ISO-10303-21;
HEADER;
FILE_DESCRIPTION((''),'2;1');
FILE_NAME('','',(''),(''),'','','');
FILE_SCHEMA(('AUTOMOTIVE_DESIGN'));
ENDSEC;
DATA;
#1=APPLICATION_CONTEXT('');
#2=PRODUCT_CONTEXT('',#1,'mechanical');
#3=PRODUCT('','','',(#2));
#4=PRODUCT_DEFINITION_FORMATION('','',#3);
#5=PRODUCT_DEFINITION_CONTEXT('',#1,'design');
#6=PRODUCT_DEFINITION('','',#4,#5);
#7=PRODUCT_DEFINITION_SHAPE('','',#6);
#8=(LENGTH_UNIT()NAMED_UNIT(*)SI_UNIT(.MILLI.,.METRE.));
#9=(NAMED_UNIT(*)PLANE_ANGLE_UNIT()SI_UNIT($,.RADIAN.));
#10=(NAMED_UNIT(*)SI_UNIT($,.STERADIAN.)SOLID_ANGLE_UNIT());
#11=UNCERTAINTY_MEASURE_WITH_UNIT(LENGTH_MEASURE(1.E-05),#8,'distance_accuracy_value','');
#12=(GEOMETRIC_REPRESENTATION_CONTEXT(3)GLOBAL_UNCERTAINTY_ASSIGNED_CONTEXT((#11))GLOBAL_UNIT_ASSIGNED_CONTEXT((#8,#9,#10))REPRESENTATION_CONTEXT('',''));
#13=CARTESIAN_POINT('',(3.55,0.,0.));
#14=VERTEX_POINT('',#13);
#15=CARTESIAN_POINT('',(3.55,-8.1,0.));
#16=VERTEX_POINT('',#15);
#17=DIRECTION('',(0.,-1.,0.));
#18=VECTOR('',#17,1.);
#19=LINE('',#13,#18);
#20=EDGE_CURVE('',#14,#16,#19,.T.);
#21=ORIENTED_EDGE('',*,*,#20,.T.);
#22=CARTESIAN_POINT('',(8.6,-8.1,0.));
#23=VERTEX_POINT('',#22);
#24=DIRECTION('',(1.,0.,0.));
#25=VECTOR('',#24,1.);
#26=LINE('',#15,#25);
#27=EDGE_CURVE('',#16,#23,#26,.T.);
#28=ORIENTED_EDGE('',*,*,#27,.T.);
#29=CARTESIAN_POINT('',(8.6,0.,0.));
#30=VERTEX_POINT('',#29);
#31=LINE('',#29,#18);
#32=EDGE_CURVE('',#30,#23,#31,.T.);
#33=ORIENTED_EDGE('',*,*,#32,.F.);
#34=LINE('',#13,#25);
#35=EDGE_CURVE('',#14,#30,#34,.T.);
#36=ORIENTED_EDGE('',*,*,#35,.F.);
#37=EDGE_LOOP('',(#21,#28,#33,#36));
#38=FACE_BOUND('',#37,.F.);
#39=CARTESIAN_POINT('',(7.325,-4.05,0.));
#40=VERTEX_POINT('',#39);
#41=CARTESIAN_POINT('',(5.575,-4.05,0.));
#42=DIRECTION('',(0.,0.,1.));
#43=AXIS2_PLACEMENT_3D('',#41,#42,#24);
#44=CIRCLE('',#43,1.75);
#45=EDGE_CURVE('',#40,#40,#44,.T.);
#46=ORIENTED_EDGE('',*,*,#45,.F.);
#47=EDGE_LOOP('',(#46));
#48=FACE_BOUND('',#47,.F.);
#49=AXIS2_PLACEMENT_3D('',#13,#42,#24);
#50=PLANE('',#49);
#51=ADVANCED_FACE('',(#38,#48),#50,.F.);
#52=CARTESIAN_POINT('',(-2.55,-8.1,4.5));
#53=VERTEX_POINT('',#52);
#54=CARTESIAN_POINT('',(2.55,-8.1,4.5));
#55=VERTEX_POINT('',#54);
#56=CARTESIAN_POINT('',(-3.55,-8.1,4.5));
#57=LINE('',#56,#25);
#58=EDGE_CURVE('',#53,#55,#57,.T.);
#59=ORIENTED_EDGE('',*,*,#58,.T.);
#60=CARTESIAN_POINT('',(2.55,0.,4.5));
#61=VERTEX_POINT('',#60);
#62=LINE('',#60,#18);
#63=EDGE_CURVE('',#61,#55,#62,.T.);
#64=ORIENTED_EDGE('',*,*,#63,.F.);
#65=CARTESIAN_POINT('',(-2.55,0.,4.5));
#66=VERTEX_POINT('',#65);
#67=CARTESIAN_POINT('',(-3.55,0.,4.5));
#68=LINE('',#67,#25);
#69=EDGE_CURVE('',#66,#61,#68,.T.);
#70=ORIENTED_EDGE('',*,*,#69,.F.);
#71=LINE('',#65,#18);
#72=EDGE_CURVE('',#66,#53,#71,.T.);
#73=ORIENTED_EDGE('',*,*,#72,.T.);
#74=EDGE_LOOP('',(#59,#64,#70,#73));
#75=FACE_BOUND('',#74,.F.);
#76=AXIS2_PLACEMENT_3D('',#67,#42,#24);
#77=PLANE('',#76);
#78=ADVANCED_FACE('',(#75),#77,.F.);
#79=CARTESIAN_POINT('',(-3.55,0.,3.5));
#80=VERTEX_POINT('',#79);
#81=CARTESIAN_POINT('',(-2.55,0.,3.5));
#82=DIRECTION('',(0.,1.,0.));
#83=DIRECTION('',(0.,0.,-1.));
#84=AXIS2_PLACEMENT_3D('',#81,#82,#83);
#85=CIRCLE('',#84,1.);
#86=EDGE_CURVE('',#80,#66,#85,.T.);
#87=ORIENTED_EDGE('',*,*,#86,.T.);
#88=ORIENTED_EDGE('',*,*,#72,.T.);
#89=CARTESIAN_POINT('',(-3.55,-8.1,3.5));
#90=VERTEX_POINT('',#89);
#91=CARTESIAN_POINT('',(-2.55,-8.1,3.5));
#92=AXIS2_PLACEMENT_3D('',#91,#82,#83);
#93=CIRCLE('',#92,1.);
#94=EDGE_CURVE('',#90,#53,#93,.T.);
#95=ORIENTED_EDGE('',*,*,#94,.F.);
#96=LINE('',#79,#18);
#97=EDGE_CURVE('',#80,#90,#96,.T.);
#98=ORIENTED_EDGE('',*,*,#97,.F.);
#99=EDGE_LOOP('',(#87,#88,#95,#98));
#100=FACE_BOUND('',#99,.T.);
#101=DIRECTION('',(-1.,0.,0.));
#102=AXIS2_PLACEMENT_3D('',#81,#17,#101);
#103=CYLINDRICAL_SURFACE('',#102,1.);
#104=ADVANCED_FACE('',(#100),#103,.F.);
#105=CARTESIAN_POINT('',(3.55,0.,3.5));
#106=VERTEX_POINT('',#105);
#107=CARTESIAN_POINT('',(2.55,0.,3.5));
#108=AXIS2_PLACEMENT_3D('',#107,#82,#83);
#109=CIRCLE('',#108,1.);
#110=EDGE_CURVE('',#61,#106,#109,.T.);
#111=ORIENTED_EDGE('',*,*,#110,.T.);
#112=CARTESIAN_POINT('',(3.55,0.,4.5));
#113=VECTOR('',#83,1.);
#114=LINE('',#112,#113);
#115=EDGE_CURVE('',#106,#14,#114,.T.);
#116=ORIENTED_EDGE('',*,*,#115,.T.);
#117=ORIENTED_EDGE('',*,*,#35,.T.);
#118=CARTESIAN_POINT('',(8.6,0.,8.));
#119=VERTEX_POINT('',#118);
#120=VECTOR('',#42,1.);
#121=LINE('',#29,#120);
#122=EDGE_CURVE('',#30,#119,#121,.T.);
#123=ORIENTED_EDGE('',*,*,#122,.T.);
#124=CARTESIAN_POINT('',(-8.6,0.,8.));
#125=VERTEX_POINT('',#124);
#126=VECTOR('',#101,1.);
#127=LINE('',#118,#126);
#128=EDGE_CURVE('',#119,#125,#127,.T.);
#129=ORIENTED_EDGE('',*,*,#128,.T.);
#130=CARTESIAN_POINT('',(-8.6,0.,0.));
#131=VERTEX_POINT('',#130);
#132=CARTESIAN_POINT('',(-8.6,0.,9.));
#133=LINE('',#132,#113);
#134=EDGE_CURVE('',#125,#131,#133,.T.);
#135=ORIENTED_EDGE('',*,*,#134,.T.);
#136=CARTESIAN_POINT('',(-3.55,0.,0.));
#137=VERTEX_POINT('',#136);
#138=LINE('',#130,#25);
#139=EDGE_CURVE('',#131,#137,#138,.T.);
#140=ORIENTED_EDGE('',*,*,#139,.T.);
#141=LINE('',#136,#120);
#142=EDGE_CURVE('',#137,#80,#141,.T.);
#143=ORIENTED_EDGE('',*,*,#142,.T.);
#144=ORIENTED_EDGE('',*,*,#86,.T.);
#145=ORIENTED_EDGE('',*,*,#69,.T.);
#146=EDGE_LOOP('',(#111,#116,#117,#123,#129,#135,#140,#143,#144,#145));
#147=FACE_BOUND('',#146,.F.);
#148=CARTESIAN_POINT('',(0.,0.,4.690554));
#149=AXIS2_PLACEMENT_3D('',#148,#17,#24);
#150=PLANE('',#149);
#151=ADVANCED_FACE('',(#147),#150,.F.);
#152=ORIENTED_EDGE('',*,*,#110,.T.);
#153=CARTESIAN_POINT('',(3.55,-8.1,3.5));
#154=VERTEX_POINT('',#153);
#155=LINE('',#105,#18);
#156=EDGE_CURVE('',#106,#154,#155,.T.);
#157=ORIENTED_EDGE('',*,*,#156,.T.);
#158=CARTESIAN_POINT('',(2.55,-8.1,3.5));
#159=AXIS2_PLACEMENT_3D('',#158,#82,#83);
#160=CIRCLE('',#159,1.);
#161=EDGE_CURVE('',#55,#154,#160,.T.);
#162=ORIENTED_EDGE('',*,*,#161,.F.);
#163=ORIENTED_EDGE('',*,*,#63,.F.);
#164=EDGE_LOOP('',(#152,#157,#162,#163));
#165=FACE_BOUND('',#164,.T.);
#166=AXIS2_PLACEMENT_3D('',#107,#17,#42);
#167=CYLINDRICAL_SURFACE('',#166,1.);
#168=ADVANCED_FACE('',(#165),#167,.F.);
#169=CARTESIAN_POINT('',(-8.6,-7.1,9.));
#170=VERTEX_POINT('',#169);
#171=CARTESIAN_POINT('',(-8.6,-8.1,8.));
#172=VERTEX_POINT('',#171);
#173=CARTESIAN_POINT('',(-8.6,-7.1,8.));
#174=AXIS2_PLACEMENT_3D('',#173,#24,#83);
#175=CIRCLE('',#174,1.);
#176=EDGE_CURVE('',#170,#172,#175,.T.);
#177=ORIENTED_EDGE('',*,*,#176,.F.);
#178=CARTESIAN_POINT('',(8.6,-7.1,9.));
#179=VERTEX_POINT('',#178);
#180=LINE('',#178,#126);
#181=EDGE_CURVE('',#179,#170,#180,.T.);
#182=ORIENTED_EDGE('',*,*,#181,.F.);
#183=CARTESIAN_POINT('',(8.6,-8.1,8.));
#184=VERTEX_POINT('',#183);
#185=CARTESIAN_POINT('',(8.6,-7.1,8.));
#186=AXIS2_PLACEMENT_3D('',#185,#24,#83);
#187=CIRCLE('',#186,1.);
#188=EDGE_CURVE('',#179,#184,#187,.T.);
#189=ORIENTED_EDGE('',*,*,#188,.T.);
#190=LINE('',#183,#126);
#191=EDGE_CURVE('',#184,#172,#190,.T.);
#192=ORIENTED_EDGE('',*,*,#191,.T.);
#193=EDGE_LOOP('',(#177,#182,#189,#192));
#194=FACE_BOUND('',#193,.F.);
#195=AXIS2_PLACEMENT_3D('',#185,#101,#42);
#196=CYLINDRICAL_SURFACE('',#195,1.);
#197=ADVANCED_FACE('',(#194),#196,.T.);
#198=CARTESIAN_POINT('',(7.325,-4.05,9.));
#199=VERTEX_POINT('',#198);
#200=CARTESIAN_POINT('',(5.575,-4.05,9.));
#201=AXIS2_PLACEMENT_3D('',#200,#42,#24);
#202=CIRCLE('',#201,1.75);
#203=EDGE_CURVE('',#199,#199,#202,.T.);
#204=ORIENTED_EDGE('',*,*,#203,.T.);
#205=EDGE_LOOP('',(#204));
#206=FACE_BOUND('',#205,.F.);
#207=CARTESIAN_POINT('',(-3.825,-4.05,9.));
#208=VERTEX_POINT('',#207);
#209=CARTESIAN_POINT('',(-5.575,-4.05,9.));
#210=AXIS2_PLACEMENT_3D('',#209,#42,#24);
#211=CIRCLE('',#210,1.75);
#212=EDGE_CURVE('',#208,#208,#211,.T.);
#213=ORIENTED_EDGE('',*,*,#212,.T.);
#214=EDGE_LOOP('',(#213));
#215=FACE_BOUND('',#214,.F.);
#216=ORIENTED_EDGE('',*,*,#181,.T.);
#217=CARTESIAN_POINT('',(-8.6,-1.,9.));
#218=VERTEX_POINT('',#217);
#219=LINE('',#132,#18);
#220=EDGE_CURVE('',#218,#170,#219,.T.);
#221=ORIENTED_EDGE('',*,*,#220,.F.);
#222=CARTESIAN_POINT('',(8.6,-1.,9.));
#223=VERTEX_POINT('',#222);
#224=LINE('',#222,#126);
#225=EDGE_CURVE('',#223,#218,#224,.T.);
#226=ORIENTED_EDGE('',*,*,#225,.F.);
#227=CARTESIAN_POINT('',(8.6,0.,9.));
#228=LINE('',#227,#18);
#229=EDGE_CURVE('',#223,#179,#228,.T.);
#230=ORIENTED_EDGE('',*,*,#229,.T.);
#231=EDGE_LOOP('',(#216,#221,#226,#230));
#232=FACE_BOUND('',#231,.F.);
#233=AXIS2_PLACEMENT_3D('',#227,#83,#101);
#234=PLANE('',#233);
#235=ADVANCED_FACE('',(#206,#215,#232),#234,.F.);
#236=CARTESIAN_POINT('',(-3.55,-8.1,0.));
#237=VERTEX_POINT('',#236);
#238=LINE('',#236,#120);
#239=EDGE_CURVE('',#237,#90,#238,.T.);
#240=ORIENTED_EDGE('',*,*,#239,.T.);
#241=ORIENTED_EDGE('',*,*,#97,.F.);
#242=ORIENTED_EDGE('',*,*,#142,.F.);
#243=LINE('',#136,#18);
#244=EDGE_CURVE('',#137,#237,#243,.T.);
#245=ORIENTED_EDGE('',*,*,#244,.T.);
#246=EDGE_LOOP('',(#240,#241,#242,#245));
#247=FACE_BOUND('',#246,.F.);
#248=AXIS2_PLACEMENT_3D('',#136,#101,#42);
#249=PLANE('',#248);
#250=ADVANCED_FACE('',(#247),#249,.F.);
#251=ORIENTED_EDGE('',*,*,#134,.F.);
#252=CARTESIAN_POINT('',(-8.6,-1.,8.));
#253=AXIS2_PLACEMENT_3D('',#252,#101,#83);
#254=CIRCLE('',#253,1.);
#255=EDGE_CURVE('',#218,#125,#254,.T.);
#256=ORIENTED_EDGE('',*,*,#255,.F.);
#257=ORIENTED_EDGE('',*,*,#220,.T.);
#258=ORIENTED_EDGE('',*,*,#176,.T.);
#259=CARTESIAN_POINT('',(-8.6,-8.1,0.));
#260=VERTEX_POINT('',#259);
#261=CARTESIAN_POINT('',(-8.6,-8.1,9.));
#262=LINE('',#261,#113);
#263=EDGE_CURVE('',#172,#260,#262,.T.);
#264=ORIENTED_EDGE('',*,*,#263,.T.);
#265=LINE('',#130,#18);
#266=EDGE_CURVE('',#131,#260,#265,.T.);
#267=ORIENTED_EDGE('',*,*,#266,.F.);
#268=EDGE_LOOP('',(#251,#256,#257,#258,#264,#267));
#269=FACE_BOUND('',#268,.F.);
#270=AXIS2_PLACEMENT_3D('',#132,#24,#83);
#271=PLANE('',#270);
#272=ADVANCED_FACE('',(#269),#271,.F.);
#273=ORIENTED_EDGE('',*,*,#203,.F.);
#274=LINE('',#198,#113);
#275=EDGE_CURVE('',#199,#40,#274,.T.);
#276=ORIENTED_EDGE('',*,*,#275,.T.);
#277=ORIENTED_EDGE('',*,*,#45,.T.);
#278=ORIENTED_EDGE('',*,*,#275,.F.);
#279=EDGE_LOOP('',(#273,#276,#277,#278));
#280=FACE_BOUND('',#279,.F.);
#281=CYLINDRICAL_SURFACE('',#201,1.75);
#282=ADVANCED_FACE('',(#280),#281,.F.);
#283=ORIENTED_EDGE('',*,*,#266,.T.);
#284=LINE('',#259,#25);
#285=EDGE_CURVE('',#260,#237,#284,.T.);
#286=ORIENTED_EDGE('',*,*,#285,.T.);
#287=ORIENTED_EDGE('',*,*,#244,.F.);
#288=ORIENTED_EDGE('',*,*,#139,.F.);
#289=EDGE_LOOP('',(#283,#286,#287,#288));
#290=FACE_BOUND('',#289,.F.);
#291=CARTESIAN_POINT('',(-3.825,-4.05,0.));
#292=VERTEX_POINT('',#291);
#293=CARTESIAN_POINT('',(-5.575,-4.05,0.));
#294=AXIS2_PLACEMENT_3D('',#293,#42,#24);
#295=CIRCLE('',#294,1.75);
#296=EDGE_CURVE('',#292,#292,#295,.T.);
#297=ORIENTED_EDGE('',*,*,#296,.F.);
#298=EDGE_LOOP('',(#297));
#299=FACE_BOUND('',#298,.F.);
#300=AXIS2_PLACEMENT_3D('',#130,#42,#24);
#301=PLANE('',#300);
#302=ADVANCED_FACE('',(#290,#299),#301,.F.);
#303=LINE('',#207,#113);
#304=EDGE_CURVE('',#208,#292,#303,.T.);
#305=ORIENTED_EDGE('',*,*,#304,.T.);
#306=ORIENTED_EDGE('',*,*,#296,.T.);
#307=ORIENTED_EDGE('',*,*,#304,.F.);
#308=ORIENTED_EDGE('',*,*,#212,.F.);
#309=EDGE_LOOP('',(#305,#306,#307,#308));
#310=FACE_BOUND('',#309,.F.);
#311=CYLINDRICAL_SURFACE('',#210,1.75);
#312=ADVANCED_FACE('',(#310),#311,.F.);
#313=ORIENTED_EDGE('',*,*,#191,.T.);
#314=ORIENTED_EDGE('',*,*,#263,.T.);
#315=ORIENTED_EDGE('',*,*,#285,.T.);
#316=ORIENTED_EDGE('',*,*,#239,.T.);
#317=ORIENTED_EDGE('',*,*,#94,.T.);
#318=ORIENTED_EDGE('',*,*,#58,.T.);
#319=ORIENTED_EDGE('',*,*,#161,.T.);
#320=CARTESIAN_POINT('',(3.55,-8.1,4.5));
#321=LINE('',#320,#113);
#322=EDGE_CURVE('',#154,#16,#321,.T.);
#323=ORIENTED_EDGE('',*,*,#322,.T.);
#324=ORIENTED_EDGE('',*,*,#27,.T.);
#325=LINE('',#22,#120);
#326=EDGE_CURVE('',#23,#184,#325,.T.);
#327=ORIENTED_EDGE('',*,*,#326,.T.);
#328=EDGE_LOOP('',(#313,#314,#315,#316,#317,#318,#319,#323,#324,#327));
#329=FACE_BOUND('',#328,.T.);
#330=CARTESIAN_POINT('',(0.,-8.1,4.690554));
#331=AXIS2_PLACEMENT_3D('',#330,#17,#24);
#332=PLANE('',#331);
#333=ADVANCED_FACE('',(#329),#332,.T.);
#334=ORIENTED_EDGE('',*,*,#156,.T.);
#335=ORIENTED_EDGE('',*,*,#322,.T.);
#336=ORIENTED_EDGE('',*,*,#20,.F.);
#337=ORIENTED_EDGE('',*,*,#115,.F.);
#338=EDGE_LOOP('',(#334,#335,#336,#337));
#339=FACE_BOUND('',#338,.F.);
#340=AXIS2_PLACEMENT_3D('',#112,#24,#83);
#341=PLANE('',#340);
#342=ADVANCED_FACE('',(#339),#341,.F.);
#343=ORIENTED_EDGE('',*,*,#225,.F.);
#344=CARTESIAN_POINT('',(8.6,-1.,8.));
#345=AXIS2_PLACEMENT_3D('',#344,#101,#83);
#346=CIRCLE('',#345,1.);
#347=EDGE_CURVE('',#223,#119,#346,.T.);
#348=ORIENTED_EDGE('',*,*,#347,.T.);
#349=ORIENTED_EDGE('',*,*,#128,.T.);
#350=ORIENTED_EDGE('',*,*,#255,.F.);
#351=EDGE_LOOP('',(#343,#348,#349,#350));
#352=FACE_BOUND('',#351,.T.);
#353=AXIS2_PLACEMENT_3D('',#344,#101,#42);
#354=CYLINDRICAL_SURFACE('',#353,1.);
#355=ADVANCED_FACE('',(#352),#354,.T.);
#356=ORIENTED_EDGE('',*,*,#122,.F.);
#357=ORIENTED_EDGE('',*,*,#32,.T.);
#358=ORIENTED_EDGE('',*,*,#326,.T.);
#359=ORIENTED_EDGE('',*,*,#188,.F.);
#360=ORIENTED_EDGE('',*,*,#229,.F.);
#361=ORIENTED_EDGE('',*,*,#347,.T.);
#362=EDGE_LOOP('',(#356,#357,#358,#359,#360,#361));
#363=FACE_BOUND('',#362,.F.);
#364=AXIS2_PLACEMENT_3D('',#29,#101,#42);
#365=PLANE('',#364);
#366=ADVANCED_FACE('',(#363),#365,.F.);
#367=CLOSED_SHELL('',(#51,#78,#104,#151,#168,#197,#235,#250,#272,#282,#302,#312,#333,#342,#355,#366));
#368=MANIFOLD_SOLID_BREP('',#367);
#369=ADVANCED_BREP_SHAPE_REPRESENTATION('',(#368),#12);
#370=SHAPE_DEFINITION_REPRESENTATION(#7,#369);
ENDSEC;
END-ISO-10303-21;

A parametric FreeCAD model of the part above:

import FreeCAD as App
import Part
import Sketcher
Q = App.Units.Quantity


def edges_at(feature, points):
    """Names of the edges that pass closest to the given points."""
    edges = feature.Shape.Edges
    near = lambda p: min(range(len(edges)), key=lambda i: edges[i].distToShape(Part.Vertex(*p))[0])
    return sorted({f"Edge{near(p) + 1}" for p in points})

doc = App.newDocument("Part")
body = doc.addObject("PartDesign::Body", "Body")

# Sketch on XZ plane
sketch1 = body.newObject("Sketcher::SketchObject", "Sketch")
sketch1.AttachmentSupport = (doc.getObject("XZ_Plane"), [""])
sketch1.MapMode = "FlatFace"
sketch1.addGeometry([
    Part.LineSegment(App.Vector(-8.6, 9, 0), App.Vector(-8.6, 0, 0)),  # 0
    Part.LineSegment(App.Vector(-8.6, 0, 0), App.Vector(-3.5, 0, 0)),  # 1
    Part.LineSegment(App.Vector(-3.5, 0, 0), App.Vector(-3.5, 4.5, 0)),  # 2
    Part.LineSegment(App.Vector(-3.5, 4.5, 0), App.Vector(3.5, 4.5, 0)),  # 3
    Part.LineSegment(App.Vector(3.5, 4.5, 0), App.Vector(3.5, 0, 0)),  # 4
    Part.LineSegment(App.Vector(3.5, 0, 0), App.Vector(8.6, 0, 0)),  # 5
    Part.LineSegment(App.Vector(8.6, 0, 0), App.Vector(8.6, 9, 0)),  # 6
    Part.LineSegment(App.Vector(8.6, 9, 0), App.Vector(-8.6, 9, 0)),  # 7
], False)
sketch1.addConstraint([
    Sketcher.Constraint("Coincident", 0, 2, 1, 1),
    Sketcher.Constraint("Coincident", 1, 2, 2, 1),
    Sketcher.Constraint("Coincident", 2, 2, 3, 1),
    Sketcher.Constraint("Coincident", 3, 2, 4, 1),
    Sketcher.Constraint("Coincident", 4, 2, 5, 1),
    Sketcher.Constraint("Coincident", 5, 2, 6, 1),
    Sketcher.Constraint("Coincident", 6, 2, 7, 1),
    Sketcher.Constraint("Coincident", 7, 2, 0, 1),
    Sketcher.Constraint("Vertical", 0),
    Sketcher.Constraint("Horizontal", 1),
    Sketcher.Constraint("Vertical", 2),
    Sketcher.Constraint("Horizontal", 3),
    Sketcher.Constraint("Vertical", 4),
    Sketcher.Constraint("Horizontal", 5),
    Sketcher.Constraint("Vertical", 6),
    Sketcher.Constraint("Horizontal", 7),
    Sketcher.Constraint("Symmetric", 1, 2, 4, 2, -1, 1),
    Sketcher.Constraint("Symmetric", 0, 2, 5, 2, -2),
    Sketcher.Constraint("DistanceY", 0, 2, 0, 1, Q("9 mm")),
    Sketcher.Constraint("DistanceX", 3, 1, 3, 2, Q("7.1 mm")),
    Sketcher.Constraint("DistanceX", 7, 2, 7, 1, Q("17.2 mm")),
    Sketcher.Constraint("DistanceY", 2, 1, 2, 2, Q("4.5 mm")),
])
pad1 = body.newObject("PartDesign::Pad", "Pad")
pad1.Profile = sketch1
pad1.Length = 8.1

# Sketch on XY plane
sketch2 = body.newObject("Sketcher::SketchObject", "Sketch001")
sketch2.AttachmentSupport = (doc.getObject("XY_Plane"), [""])
sketch2.MapMode = "FlatFace"
sketch2.AttachmentOffset = App.Placement(App.Vector(0, 0, 9), App.Rotation())
sketch2.addGeometry([
    Part.Circle(App.Vector(-5.6, -4, 0), App.Vector(0, 0, 1), 1.8),
    Part.Circle(App.Vector(5.6, -4, 0), App.Vector(0, 0, 1), 1.8),
], False)
sketch2.addConstraint([
    Sketcher.Constraint("Equal", 0, 1),
    Sketcher.Constraint("Symmetric", 0, 3, 1, 3, -2),
    Sketcher.Constraint("Diameter", 0, Q("3.5 mm")),
    Sketcher.Constraint("DistanceY", 0, 3, -1, 1, Q("4.05 mm")),
    Sketcher.Constraint("DistanceX", 0, 3, 1, 3, Q("11.15 mm")),
])
pocket1 = body.newObject("PartDesign::Pocket", "Pocket")
pocket1.Profile = sketch2
pocket1.Type = "ThroughAll"
doc.recompute()

fillet = body.newObject("PartDesign::Fillet", "Fillet")
fillet.Base = (pocket1, edges_at(pocket1, [
    (0, -8.1, 9),
    (0, 0, 9),
    (-3.55, -4.05, 4.5),
    (3.55, -4.05, 4.5),
]))
fillet.Radius = 1

doc.recompute()
